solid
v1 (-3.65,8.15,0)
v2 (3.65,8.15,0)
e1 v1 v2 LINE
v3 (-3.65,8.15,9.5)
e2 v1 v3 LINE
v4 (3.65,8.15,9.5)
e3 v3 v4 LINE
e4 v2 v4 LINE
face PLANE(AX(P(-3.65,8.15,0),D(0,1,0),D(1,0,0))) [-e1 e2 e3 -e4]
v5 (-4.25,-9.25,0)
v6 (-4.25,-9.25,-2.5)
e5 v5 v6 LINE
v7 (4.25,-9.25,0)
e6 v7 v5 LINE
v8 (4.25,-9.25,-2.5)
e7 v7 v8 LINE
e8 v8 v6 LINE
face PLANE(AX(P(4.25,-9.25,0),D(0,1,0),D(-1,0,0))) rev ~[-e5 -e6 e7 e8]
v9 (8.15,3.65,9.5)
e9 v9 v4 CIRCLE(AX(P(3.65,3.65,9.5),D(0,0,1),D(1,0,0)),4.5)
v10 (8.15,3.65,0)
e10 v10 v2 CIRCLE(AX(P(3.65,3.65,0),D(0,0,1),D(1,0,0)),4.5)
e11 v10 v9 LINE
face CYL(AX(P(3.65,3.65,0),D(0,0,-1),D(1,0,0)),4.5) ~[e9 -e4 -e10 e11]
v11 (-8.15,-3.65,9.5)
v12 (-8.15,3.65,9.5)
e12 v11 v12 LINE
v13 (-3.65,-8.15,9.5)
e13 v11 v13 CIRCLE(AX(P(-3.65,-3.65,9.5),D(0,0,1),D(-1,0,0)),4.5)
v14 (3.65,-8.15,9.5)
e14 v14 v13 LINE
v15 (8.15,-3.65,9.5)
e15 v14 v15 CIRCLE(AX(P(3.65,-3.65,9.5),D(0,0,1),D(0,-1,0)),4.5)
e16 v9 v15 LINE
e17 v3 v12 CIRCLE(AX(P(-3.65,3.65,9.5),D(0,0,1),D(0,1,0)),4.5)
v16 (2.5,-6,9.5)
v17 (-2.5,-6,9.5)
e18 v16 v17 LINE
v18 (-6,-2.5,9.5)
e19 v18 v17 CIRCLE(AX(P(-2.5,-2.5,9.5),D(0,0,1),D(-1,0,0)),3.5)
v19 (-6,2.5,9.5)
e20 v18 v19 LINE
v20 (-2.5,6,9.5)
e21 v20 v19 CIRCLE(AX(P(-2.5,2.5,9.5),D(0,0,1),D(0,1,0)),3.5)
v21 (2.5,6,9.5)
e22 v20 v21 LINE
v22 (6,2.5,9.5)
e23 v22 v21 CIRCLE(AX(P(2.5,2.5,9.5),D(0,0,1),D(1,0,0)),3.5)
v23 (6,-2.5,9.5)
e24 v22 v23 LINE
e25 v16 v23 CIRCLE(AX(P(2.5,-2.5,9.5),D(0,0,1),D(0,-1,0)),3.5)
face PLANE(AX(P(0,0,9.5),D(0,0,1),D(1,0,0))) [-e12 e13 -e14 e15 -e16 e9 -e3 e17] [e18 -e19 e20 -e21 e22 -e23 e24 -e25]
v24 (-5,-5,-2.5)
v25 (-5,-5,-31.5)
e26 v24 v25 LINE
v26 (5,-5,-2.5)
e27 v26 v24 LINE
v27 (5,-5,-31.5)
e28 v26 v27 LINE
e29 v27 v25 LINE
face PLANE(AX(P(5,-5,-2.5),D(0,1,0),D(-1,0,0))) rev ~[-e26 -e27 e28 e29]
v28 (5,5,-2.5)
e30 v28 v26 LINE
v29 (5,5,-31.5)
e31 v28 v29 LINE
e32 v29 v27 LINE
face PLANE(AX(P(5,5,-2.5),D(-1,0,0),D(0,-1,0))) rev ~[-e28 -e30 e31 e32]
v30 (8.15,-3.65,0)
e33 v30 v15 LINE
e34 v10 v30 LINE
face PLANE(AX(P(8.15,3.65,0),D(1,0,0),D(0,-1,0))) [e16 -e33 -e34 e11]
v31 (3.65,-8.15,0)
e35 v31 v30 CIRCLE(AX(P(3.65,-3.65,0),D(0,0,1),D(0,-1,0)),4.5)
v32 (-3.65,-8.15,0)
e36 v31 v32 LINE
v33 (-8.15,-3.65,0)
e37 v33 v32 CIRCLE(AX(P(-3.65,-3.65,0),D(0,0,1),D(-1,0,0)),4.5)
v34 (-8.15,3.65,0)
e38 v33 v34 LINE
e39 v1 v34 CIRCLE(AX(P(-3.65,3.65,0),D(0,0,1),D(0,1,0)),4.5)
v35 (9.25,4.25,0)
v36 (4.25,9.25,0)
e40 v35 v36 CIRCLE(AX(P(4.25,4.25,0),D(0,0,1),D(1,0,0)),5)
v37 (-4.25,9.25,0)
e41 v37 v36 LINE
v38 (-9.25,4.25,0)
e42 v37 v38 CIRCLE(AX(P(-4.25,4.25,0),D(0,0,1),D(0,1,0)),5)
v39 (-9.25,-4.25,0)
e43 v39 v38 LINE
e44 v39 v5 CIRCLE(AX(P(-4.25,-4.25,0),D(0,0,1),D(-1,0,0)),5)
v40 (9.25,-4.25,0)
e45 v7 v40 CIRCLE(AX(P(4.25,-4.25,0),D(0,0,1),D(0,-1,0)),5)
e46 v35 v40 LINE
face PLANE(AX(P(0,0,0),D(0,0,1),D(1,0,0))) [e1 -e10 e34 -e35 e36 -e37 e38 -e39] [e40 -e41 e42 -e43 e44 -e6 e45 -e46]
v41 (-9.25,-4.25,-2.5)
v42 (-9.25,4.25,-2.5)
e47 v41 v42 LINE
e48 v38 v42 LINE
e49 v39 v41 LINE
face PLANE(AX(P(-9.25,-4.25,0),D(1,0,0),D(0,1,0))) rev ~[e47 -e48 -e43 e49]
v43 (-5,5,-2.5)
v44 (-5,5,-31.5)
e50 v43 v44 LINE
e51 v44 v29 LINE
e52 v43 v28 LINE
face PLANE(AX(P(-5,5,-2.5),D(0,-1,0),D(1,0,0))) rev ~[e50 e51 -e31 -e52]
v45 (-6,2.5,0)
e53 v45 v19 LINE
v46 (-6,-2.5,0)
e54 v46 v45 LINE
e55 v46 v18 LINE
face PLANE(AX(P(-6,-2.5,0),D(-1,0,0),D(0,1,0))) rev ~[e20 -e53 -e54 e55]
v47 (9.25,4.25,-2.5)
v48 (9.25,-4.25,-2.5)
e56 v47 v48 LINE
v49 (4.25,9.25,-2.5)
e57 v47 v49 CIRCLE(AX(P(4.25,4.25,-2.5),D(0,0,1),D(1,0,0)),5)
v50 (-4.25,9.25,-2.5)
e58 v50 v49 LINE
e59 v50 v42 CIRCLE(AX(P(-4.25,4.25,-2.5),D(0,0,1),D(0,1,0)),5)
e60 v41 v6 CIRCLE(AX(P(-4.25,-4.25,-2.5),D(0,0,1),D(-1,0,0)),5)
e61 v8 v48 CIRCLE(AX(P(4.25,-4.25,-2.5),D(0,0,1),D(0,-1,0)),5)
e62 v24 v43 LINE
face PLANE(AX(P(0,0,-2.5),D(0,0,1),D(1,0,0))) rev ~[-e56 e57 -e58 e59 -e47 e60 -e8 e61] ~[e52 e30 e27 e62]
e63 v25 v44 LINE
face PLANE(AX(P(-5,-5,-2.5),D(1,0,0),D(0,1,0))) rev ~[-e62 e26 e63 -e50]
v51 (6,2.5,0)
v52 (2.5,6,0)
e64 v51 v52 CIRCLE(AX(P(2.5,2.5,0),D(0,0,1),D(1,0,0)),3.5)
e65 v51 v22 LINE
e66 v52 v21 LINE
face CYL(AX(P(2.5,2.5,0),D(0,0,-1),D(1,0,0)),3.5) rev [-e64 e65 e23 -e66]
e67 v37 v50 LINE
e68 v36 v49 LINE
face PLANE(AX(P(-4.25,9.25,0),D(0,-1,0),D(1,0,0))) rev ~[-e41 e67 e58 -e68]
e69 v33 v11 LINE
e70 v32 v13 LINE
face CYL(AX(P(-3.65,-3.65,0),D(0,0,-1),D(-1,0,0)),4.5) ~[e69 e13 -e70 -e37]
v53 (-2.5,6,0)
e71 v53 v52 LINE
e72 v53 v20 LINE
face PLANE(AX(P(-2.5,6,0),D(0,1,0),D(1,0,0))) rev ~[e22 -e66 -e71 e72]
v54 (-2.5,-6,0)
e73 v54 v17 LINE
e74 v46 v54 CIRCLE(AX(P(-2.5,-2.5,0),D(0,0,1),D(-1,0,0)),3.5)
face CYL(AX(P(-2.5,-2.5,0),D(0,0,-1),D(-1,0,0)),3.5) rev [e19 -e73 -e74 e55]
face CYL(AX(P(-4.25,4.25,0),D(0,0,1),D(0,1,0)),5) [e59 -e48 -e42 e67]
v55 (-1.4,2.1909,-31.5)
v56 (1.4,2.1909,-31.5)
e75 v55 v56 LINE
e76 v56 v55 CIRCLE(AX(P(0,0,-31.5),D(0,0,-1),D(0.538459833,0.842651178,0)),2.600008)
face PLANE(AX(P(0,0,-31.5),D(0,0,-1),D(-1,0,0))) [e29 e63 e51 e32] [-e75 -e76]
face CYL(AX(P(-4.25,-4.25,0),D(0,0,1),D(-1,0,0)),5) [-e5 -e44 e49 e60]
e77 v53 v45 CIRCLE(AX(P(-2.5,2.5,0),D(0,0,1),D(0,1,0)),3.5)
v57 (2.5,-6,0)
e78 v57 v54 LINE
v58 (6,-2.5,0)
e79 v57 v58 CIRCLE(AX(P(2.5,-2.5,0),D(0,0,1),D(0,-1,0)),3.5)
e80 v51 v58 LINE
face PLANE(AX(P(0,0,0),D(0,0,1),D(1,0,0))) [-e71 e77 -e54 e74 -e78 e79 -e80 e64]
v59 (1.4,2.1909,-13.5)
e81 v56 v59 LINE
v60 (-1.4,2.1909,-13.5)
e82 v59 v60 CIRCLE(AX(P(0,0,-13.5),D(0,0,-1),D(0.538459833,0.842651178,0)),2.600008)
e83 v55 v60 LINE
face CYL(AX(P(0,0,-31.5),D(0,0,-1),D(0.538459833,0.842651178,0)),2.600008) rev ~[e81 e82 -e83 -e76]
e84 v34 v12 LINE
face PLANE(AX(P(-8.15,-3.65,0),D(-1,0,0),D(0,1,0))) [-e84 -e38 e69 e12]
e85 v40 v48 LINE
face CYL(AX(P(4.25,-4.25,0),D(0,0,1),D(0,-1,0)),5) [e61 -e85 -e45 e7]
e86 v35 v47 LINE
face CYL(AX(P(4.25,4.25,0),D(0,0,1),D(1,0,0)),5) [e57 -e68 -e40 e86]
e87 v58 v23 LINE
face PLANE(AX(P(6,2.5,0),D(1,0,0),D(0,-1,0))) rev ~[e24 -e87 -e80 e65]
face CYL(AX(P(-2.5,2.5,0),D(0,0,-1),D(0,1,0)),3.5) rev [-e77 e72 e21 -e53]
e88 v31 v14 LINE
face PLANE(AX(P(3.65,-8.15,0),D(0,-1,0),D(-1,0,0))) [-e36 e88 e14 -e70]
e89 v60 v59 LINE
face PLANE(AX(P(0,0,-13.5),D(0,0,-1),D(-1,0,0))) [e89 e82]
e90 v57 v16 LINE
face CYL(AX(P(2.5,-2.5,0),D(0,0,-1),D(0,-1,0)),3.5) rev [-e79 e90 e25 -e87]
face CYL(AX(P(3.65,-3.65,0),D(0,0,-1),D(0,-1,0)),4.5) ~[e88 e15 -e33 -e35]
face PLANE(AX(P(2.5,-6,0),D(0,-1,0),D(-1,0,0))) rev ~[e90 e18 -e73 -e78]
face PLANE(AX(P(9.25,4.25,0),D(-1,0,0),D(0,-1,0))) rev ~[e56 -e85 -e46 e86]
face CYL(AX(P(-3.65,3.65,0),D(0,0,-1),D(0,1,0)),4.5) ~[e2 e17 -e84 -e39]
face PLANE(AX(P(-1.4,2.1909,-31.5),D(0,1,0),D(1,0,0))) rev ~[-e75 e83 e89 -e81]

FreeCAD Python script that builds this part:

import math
import FreeCAD as App
import Part
import Sketcher
Q = App.Units.Quantity

doc = App.newDocument("Part")
body = doc.addObject("PartDesign::Body", "Body")

# Sketch on XY plane
sketch1 = doc.addObject("Sketcher::SketchObject", "Sketch")
body.addObject(sketch1)
sketch1.AttachmentSupport = (doc.XY_Plane, [""])
sketch1.MapMode = "FlatFace"
sketch1.addGeometry(Part.LineSegment(App.Vector(4, 9, 0), App.Vector(-4, 9, 0)), False)
sketch1.addGeometry(Part.ArcOfCircle(Part.Circle(App.Vector(-4, 4, 0), App.Vector(0, 0, 1), 5), math.radians(90), math.radians(180)), False)
sketch1.addGeometry(Part.LineSegment(App.Vector(-9, 4, 0), App.Vector(-9, -4, 0)), False)
sketch1.addGeometry(Part.ArcOfCircle(Part.Circle(App.Vector(-4, -4, 0), App.Vector(0, 0, 1), 5), math.radians(180), math.radians(270)), False)
sketch1.addGeometry(Part.LineSegment(App.Vector(-4, -9, 0), App.Vector(4, -9, 0)), False)
sketch1.addGeometry(Part.ArcOfCircle(Part.Circle(App.Vector(4, -4, 0), App.Vector(0, 0, 1), 5), math.radians(-90), math.radians(0)), False)
sketch1.addGeometry(Part.LineSegment(App.Vector(9, -4, 0), App.Vector(9, 4, 0)), False)
sketch1.addGeometry(Part.ArcOfCircle(Part.Circle(App.Vector(4, 4, 0), App.Vector(0, 0, 1), 5), math.radians(0), math.radians(90)), False)
sketch1.addConstraint(Sketcher.Constraint("Tangent", 0, 2, 1, 1))
sketch1.addConstraint(Sketcher.Constraint("Tangent", 1, 2, 2, 1))
sketch1.addConstraint(Sketcher.Constraint("Tangent", 2, 2, 3, 1))
sketch1.addConstraint(Sketcher.Constraint("Tangent", 3, 2, 4, 1))
sketch1.addConstraint(Sketcher.Constraint("Tangent", 4, 2, 5, 1))
sketch1.addConstraint(Sketcher.Constraint("Tangent", 5, 2, 6, 1))
sketch1.addConstraint(Sketcher.Constraint("Tangent", 6, 2, 7, 1))
sketch1.addConstraint(Sketcher.Constraint("Tangent", 7, 2, 0, 1))
sketch1.addConstraint(Sketcher.Constraint("Horizontal", 0))
sketch1.addConstraint(Sketcher.Constraint("Vertical", 2))
sketch1.addConstraint(Sketcher.Constraint("Horizontal", 4))
sketch1.addConstraint(Sketcher.Constraint("Vertical", 6))
sketch1.addConstraint(Sketcher.Constraint("Equal", 1, 3))
sketch1.addConstraint(Sketcher.Constraint("Equal", 3, 5))
sketch1.addConstraint(Sketcher.Constraint("Equal", 5, 7))
sketch1.addConstraint(Sketcher.Constraint("Symmetric", 1, 3, 5, 3, -1, 1))
sketch1.addConstraint(Sketcher.Constraint("Equal", 4, 2))
sketch1.addConstraint(Sketcher.Constraint("Radius", 1, Q("5 mm")))
sketch1.addConstraint(Sketcher.Constraint("DistanceX", 0, 2, 0, 1, Q("8.5 mm")))
pad1 = doc.addObject("PartDesign::Pad", "Pad")
body.addObject(pad1)
pad1.Profile = sketch1
pad1.Length = 2.5
pad1.Reversed = True

# Sketch on XY plane
sketch2 = doc.addObject("Sketcher::SketchObject", "Sketch001")
body.addObject(sketch2)
sketch2.AttachmentSupport = (doc.XY_Plane, [""])
sketch2.MapMode = "FlatFace"
sketch2.AttachmentOffset = App.Placement(App.Vector(0, 0, -2.5), App.Rotation())
sketch2.addGeometry(Part.LineSegment(App.Vector(5, 5, 0), App.Vector(5, -5, 0)), False)
sketch2.addGeometry(Part.LineSegment(App.Vector(5, -5, 0), App.Vector(-5, -5, 0)), False)
sketch2.addGeometry(Part.LineSegment(App.Vector(-5, -5, 0), App.Vector(-5, 5, 0)), False)
sketch2.addGeometry(Part.LineSegment(App.Vector(-5, 5, 0), App.Vector(5, 5, 0)), False)
sketch2.addConstraint(Sketcher.Constraint("Coincident", 0, 2, 1, 1))
sketch2.addConstraint(Sketcher.Constraint("Coincident", 1, 2, 2, 1))
sketch2.addConstraint(Sketcher.Constraint("Coincident", 2, 2, 3, 1))
sketch2.addConstraint(Sketcher.Constraint("Coincident", 3, 2, 0, 1))
sketch2.addConstraint(Sketcher.Constraint("Vertical", 0))
sketch2.addConstraint(Sketcher.Constraint("Horizontal", 1))
sketch2.addConstraint(Sketcher.Constraint("Vertical", 2))
sketch2.addConstraint(Sketcher.Constraint("Horizontal", 3))
sketch2.addConstraint(Sketcher.Constraint("Symmetric", 0, 2, 2, 2, -1, 1))
sketch2.addConstraint(Sketcher.Constraint("Equal", 3, 0))
sketch2.addConstraint(Sketcher.Constraint("DistanceX", 1, 2, 1, 1, Q("10 mm")))
pad2 = doc.addObject("PartDesign::Pad", "Pad001")
body.addObject(pad2)
pad2.Profile = sketch2
pad2.Length = 29
pad2.Reversed = True

# Sketch on XY plane
sketch3 = doc.addObject("Sketcher::SketchObject", "Sketch002")
body.addObject(sketch3)
sketch3.AttachmentSupport = (doc.XY_Plane, [""])
sketch3.MapMode = "FlatFace"
sketch3.addGeometry(Part.LineSegment(App.Vector(3.6, 8.2, 0), App.Vector(-3.6, 8.2, 0)), False)
sketch3.addGeometry(Part.ArcOfCircle(Part.Circle(App.Vector(-3.6, 3.6, 0), App.Vector(0, 0, 1), 4.5), math.radians(90), math.radians(180)), False)
sketch3.addGeometry(Part.LineSegment(App.Vector(-8.2, 3.6, 0), App.Vector(-8.2, -3.6, 0)), False)
sketch3.addGeometry(Part.ArcOfCircle(Part.Circle(App.Vector(-3.6, -3.6, 0), App.Vector(0, 0, 1), 4.5), math.radians(180), math.radians(270)), False)
sketch3.addGeometry(Part.LineSegment(App.Vector(-3.6, -8.2, 0), App.Vector(3.6, -8.2, 0)), False)
sketch3.addGeometry(Part.ArcOfCircle(Part.Circle(App.Vector(3.6, -3.6, 0), App.Vector(0, 0, 1), 4.5), math.radians(-90), math.radians(0)), False)
sketch3.addGeometry(Part.LineSegment(App.Vector(8.2, -3.6, 0), App.Vector(8.2, 3.6, 0)), False)
sketch3.addGeometry(Part.ArcOfCircle(Part.Circle(App.Vector(3.6, 3.6, 0), App.Vector(0, 0, 1), 4.5), math.radians(0), math.radians(90)), False)
sketch3.addGeometry(Part.ArcOfCircle(Part.Circle(App.Vector(-2.5, 2.5, 0), App.Vector(0, 0, 1), 3.5), math.radians(90), math.radians(180)), False)
sketch3.addGeometry(Part.LineSegment(App.Vector(-2.5, 6, 0), App.Vector(2.5, 6, 0)), False)
sketch3.addGeometry(Part.ArcOfCircle(Part.Circle(App.Vector(2.5, 2.5, 0), App.Vector(0, 0, 1), 3.5), math.radians(0), math.radians(90)), False)
sketch3.addGeometry(Part.LineSegment(App.Vector(6, 2.5, 0), App.Vector(6, -2.5, 0)), False)
sketch3.addGeometry(Part.ArcOfCircle(Part.Circle(App.Vector(2.5, -2.5, 0), App.Vector(0, 0, 1), 3.5), math.radians(-90), math.radians(0)), False)
sketch3.addGeometry(Part.LineSegment(App.Vector(2.5, -6, 0), App.Vector(-2.5, -6, 0)), False)
sketch3.addGeometry(Part.ArcOfCircle(Part.Circle(App.Vector(-2.5, -2.5, 0), App.Vector(0, 0, 1), 3.5), math.radians(180), math.radians(270)), False)
sketch3.addGeometry(Part.LineSegment(App.Vector(-6, -2.5, 0), App.Vector(-6, 2.5, 0)), False)
sketch3.addConstraint(Sketcher.Constraint("Tangent", 0, 2, 1, 1))
sketch3.addConstraint(Sketcher.Constraint("Tangent", 1, 2, 2, 1))
sketch3.addConstraint(Sketcher.Constraint("Tangent", 2, 2, 3, 1))
sketch3.addConstraint(Sketcher.Constraint("Tangent", 3, 2, 4, 1))
sketch3.addConstraint(Sketcher.Constraint("Tangent", 4, 2, 5, 1))
sketch3.addConstraint(Sketcher.Constraint("Tangent", 5, 2, 6, 1))
sketch3.addConstraint(Sketcher.Constraint("Tangent", 6, 2, 7, 1))
sketch3.addConstraint(Sketcher.Constraint("Tangent", 7, 2, 0, 1))
sketch3.addConstraint(Sketcher.Constraint("Tangent", 8, 1, 9, 1))
sketch3.addConstraint(Sketcher.Constraint("Tangent", 9, 2, 10, 2))
sketch3.addConstraint(Sketcher.Constraint("Tangent", 10, 1, 11, 1))
sketch3.addConstraint(Sketcher.Constraint("Tangent", 11, 2, 12, 2))
sketch3.addConstraint(Sketcher.Constraint("Tangent", 12, 1, 13, 1))
sketch3.addConstraint(Sketcher.Constraint("Tangent", 13, 2, 14, 2))
sketch3.addConstraint(Sketcher.Constraint("Tangent", 14, 1, 15, 1))
sketch3.addConstraint(Sketcher.Constraint("Tangent", 15, 2, 8, 2))
sketch3.addConstraint(Sketcher.Constraint("Horizontal", 0))
sketch3.addConstraint(Sketcher.Constraint("Vertical", 2))
sketch3.addConstraint(Sketcher.Constraint("Horizontal", 4))
sketch3.addConstraint(Sketcher.Constraint("Vertical", 6))
sketch3.addConstraint(Sketcher.Constraint("Horizontal", 9))
sketch3.addConstraint(Sketcher.Constraint("Vertical", 11))
sketch3.addConstraint(Sketcher.Constraint("Horizontal", 13))
sketch3.addConstraint(Sketcher.Constraint("Vertical", 15))
sketch3.addConstraint(Sketcher.Constraint("Equal", 1, 3))
sketch3.addConstraint(Sketcher.Constraint("Equal", 3, 5))
sketch3.addConstraint(Sketcher.Constraint("Equal", 5, 7))
sketch3.addConstraint(Sketcher.Constraint("Equal", 8, 10))
sketch3.addConstraint(Sketcher.Constraint("Equal", 10, 12))
sketch3.addConstraint(Sketcher.Constraint("Equal", 12, 14))
sketch3.addConstraint(Sketcher.Constraint("Symmetric", 1, 3, 5, 3, -1, 1))
sketch3.addConstraint(Sketcher.Constraint("Symmetric", 8, 3, 12, 3, -1, 1))
sketch3.addConstraint(Sketcher.Constraint("Equal", 4, 2))
sketch3.addConstraint(Sketcher.Constraint("Equal", 13, 11))
sketch3.addConstraint(Sketcher.Constraint("Radius", 1, Q("4.5 mm")))
sketch3.addConstraint(Sketcher.Constraint("Radius", 8, Q("3.5 mm")))
sketch3.addConstraint(Sketcher.Constraint("DistanceX", 9, 1, 9, 2, Q("5 mm")))
sketch3.addConstraint(Sketcher.Constraint("DistanceX", 0, 2, 0, 1, Q("7.3 mm")))
pad3 = doc.addObject("PartDesign::Pad", "Pad002")
body.addObject(pad3)
pad3.Profile = sketch3
pad3.Length = 9.5

# Sketch on XY plane
sketch4 = doc.addObject("Sketcher::SketchObject", "Sketch003")
body.addObject(sketch4)
sketch4.AttachmentSupport = (doc.XY_Plane, [""])
sketch4.MapMode = "FlatFace"
sketch4.AttachmentOffset = App.Placement(App.Vector(0, 0, -31.5), App.Rotation())
sketch4.addGeometry(Part.LineSegment(App.Vector(-1.4, 2.2, 0), App.Vector(1.4, 2.2, 0)), False)
sketch4.addGeometry(Part.ArcOfCircle(Part.Circle(App.Vector(0, 0, 0), App.Vector(0, 0, 1), 2.6), math.radians(123), math.radians(417)), False)
sketch4.addConstraint(Sketcher.Constraint("Coincident", 0, 1, 1, 1))
sketch4.addConstraint(Sketcher.Constraint("Coincident", 1, 2, 0, 2))
sketch4.addConstraint(Sketcher.Constraint("Horizontal", 0))
sketch4.addConstraint(Sketcher.Constraint("Coincident", 1, 3, -1, 1))
sketch4.addConstraint(Sketcher.Constraint("Radius", 1, Q("2.6 mm")))
sketch4.addConstraint(Sketcher.Constraint("DistanceX", 0, 1, 0, 2, Q("2.8 mm")))
pocket1 = doc.addObject("PartDesign::Pocket", "Pocket")
body.addObject(pocket1)
pocket1.Profile = sketch4
pocket1.Length = 18
pocket1.Reversed = True

doc.recompute()
